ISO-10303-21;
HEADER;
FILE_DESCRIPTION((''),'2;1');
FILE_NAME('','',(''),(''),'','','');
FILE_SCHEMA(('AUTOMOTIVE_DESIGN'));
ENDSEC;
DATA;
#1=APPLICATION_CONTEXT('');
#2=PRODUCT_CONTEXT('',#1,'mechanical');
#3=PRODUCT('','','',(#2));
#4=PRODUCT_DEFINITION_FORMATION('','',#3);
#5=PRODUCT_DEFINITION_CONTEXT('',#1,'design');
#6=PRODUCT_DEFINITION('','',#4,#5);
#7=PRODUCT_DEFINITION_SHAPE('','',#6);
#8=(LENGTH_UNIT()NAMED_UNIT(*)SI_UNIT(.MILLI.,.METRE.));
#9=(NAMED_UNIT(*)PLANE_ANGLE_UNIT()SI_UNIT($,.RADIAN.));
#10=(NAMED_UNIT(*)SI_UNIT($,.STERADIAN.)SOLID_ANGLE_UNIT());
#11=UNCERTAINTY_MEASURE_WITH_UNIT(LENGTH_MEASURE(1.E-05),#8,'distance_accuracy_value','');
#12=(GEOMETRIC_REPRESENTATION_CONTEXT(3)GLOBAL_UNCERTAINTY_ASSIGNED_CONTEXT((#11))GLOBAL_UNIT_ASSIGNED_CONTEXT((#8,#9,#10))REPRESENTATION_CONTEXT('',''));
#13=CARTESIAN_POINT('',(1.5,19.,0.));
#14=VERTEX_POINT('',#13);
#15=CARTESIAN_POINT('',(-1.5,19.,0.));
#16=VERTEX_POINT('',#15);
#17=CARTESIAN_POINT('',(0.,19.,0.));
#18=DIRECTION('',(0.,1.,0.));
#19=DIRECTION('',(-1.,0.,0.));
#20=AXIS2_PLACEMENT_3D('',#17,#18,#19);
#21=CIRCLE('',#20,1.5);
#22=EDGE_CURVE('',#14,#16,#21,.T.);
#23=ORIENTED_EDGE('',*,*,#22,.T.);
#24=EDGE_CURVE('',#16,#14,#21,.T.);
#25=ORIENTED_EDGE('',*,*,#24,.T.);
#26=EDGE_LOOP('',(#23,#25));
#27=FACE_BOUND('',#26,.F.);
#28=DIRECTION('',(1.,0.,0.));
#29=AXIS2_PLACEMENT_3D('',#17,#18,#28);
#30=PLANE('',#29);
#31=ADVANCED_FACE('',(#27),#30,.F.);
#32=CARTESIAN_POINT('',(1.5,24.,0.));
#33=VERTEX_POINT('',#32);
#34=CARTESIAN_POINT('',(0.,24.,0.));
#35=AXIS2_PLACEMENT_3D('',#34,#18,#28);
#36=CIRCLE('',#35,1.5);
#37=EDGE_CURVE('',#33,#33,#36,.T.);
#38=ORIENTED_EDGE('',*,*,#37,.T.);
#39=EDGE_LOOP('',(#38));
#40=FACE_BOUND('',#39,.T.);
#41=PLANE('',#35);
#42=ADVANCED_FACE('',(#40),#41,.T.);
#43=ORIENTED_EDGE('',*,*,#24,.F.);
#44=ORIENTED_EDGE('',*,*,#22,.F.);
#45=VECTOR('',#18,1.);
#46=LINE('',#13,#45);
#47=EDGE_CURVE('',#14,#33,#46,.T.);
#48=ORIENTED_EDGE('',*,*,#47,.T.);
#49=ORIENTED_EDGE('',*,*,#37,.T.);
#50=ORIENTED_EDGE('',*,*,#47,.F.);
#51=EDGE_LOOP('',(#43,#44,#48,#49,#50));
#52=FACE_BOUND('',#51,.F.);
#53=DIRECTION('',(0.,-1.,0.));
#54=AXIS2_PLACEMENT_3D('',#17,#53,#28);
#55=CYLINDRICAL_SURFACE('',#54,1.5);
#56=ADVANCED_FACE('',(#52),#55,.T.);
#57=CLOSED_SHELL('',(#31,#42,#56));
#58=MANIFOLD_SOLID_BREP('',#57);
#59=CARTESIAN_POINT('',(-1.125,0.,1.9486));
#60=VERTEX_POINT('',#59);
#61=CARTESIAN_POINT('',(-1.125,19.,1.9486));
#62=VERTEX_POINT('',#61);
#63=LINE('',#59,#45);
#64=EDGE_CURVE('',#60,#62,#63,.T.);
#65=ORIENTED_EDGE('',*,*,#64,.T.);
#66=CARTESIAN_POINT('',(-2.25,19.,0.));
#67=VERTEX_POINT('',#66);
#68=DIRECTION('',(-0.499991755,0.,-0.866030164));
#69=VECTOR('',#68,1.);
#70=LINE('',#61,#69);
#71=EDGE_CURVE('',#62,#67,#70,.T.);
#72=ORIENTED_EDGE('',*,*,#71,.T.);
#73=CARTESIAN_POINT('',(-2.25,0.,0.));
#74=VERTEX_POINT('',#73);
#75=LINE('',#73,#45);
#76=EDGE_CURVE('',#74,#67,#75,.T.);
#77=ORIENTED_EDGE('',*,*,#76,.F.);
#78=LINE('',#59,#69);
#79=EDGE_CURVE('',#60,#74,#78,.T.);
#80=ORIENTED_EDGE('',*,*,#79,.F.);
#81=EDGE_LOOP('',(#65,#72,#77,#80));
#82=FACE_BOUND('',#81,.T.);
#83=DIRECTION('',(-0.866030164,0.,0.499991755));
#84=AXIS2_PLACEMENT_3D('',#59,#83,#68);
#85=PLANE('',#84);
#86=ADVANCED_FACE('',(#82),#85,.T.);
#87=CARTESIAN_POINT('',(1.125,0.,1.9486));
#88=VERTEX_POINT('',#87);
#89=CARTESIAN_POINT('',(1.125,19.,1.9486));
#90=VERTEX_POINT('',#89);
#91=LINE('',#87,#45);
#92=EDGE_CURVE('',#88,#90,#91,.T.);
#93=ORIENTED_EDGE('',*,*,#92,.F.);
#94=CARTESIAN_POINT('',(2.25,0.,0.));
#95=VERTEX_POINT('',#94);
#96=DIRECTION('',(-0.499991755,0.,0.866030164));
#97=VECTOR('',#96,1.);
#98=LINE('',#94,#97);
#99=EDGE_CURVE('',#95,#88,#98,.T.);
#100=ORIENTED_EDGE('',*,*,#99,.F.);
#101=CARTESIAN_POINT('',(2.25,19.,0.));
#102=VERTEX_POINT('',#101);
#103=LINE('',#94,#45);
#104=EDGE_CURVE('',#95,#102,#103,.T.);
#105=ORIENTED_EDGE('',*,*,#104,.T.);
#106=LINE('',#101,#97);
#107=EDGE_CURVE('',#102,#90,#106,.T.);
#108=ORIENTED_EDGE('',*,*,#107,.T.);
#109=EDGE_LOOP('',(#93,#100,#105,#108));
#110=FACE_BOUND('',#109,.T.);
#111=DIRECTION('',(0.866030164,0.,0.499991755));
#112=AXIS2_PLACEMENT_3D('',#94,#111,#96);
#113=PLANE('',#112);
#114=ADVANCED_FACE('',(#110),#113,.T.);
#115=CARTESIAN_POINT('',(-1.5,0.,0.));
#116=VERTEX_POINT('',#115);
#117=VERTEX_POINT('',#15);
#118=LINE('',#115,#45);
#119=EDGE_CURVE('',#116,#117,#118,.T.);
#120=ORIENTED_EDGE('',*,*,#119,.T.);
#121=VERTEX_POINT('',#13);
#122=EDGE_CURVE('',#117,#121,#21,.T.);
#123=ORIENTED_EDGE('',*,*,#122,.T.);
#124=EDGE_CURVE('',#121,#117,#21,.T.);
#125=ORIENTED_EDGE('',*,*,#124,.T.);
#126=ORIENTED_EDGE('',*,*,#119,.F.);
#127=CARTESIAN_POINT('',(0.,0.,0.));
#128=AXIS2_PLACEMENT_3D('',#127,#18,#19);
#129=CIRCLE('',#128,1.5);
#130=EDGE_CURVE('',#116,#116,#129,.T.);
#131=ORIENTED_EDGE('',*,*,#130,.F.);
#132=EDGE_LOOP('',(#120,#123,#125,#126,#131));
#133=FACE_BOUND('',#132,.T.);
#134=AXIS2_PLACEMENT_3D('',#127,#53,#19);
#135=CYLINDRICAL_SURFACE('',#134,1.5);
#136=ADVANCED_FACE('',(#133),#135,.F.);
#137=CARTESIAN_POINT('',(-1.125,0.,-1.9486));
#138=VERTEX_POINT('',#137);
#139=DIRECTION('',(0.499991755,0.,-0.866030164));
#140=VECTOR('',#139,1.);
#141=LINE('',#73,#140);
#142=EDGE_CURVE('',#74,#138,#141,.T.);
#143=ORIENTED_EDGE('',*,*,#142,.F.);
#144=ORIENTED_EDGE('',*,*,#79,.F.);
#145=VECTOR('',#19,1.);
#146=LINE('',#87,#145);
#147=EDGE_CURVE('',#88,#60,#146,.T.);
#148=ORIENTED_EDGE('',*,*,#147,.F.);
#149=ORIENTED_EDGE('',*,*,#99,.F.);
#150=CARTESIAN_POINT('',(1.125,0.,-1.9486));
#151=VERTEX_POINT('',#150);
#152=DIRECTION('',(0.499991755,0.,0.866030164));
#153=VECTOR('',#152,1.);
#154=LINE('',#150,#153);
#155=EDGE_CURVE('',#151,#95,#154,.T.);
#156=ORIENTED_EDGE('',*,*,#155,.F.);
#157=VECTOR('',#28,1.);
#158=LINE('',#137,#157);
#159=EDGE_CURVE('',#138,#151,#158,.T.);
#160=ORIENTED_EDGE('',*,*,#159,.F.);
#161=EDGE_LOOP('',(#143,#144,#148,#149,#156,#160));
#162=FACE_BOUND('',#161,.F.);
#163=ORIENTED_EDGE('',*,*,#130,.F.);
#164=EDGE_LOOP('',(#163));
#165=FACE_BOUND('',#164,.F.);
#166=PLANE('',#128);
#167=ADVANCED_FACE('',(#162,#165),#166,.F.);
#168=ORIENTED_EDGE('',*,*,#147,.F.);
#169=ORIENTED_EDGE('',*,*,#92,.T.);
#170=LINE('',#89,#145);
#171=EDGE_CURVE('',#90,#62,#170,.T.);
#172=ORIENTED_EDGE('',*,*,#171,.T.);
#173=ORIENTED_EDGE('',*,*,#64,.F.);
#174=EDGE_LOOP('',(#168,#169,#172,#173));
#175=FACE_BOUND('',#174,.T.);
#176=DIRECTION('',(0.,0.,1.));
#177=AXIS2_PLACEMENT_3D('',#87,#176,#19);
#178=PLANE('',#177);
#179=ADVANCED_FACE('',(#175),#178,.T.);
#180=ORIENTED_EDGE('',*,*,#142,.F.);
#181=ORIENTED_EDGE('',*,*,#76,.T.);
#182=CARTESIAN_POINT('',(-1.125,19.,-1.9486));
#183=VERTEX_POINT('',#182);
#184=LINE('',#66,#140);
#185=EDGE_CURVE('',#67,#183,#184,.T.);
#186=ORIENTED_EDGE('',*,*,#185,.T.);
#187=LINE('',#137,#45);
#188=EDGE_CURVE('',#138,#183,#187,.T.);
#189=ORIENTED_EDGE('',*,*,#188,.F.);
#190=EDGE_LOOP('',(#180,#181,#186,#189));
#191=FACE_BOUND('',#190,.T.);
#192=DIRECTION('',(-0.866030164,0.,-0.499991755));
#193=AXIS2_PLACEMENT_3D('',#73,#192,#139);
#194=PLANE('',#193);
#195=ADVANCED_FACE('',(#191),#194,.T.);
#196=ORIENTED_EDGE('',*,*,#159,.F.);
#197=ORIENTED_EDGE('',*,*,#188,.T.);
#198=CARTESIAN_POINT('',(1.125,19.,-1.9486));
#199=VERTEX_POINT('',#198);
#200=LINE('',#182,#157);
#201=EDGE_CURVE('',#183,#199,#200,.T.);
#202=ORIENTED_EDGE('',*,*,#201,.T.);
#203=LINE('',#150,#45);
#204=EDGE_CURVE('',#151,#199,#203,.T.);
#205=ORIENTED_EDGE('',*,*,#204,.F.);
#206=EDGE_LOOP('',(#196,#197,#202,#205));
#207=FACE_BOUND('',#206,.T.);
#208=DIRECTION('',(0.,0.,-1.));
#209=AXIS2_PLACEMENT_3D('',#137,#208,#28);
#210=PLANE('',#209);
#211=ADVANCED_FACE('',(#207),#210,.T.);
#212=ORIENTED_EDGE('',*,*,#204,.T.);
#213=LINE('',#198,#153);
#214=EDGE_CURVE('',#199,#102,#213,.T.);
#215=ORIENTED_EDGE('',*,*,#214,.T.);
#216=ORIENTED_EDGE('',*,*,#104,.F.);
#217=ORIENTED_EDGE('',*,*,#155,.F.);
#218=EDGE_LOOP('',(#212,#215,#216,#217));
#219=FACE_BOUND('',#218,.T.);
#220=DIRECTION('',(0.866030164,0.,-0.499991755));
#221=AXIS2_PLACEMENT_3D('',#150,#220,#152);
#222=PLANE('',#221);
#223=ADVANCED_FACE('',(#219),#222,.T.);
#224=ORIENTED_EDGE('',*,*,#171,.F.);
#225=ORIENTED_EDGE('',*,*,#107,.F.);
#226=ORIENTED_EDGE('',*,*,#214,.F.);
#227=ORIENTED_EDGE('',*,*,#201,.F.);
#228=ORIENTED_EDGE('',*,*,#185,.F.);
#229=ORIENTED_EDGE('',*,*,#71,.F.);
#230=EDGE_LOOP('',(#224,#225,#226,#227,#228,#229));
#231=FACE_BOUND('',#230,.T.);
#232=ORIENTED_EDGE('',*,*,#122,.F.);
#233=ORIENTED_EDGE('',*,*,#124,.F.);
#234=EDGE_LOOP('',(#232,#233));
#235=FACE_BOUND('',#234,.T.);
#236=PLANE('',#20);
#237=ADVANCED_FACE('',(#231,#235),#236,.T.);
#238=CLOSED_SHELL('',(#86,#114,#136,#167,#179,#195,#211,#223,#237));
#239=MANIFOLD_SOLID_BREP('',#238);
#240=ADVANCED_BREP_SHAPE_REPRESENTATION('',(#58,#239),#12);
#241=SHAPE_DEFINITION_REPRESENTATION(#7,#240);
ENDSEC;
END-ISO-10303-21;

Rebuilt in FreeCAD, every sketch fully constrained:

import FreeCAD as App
import Part
import Sketcher
Q = App.Units.Quantity


def add_polygon(sketch, points):
    """Adds a closed chain of lines whose ends are joined by coincident constraints."""
    first, n = sketch.GeometryCount, len(points)
    for a, b in zip(points, points[1:] + points[:1]):
        sketch.addGeometry(Part.LineSegment(App.Vector(*a, 0), App.Vector(*b, 0)), False)
    for i in range(n):
        sketch.addConstraint(Sketcher.Constraint("Coincident", first + i, 2, first + (i + 1) % n, 1))

doc = App.newDocument("Part")
body = doc.addObject("PartDesign::Body", "Body")
body.AllowCompound = True

# Sketch on XZ plane
sketch1 = doc.addObject("Sketcher::SketchObject", "Sketch")
body.addObject(sketch1)
sketch1.AttachmentSupport = (doc.XZ_Plane, [""])
sketch1.MapMode = "FlatFace"
add_polygon(sketch1, [(-1.1, -1.9), (-2.2, 0), (-1.1, 1.9), (1.1, 1.9), (2.2, 0), (1.1, -1.9)])  # lines 0-5
sketch1.addGeometry(Part.Circle(App.Vector(0, 0, 0), App.Vector(0, 0, 1), 1.5), False)  # 6
sketch1.addConstraint(Sketcher.Constraint("Horizontal", 2))
sketch1.addConstraint(Sketcher.Constraint("Horizontal", 5))
sketch1.addConstraint(Sketcher.Constraint("Coincident", 6, 3, -1, 1))
sketch1.addConstraint(Sketcher.Constraint("Symmetric", 0, 2, 3, 2, -1, 1))
sketch1.addConstraint(Sketcher.Constraint("Symmetric", 1, 2, 4, 2, -1, 1))
sketch1.addConstraint(Sketcher.Constraint("PointOnObject", 0, 2, -1))
sketch1.addConstraint(Sketcher.Constraint("Parallel", 0, 3))
sketch1.addConstraint(Sketcher.Constraint("Vertical", 2, 2, 4, 2))
sketch1.addConstraint(Sketcher.Constraint("Diameter", 6, Q("3 mm")))
sketch1.addConstraint(Sketcher.Constraint("DistanceX", 0, 2, 3, 2, Q("4.5 mm")))
sketch1.addConstraint(Sketcher.Constraint("Angle", 0, Q("119.9995 deg")))
sketch1.addConstraint(Sketcher.Constraint("DistanceX", 2, 1, 2, 2, Q("2.25 mm")))
pad1 = doc.addObject("PartDesign::Pad", "Pad")
body.addObject(pad1)
pad1.Profile = sketch1
pad1.Length = 19
pad1.Reversed = True

# Sketch on XZ plane
sketch2 = doc.addObject("Sketcher::SketchObject", "Sketch001")
body.addObject(sketch2)
sketch2.AttachmentSupport = (doc.XZ_Plane, [""])
sketch2.MapMode = "FlatFace"
sketch2.AttachmentOffset = App.Placement(App.Vector(0, 0, -19), App.Rotation())
sketch2.addGeometry(Part.Circle(App.Vector(0, 0, 0), App.Vector(0, 0, 1), 1.5), False)
sketch2.addConstraint(Sketcher.Constraint("Coincident", 0, 3, -1, 1))
sketch2.addConstraint(Sketcher.Constraint("Diameter", 0, Q("3 mm")))
pad2 = doc.addObject("PartDesign::Pad", "Pad001")
body.addObject(pad2)
pad2.Profile = sketch2
pad2.Length = 5
pad2.Reversed = True

doc.recompute()
